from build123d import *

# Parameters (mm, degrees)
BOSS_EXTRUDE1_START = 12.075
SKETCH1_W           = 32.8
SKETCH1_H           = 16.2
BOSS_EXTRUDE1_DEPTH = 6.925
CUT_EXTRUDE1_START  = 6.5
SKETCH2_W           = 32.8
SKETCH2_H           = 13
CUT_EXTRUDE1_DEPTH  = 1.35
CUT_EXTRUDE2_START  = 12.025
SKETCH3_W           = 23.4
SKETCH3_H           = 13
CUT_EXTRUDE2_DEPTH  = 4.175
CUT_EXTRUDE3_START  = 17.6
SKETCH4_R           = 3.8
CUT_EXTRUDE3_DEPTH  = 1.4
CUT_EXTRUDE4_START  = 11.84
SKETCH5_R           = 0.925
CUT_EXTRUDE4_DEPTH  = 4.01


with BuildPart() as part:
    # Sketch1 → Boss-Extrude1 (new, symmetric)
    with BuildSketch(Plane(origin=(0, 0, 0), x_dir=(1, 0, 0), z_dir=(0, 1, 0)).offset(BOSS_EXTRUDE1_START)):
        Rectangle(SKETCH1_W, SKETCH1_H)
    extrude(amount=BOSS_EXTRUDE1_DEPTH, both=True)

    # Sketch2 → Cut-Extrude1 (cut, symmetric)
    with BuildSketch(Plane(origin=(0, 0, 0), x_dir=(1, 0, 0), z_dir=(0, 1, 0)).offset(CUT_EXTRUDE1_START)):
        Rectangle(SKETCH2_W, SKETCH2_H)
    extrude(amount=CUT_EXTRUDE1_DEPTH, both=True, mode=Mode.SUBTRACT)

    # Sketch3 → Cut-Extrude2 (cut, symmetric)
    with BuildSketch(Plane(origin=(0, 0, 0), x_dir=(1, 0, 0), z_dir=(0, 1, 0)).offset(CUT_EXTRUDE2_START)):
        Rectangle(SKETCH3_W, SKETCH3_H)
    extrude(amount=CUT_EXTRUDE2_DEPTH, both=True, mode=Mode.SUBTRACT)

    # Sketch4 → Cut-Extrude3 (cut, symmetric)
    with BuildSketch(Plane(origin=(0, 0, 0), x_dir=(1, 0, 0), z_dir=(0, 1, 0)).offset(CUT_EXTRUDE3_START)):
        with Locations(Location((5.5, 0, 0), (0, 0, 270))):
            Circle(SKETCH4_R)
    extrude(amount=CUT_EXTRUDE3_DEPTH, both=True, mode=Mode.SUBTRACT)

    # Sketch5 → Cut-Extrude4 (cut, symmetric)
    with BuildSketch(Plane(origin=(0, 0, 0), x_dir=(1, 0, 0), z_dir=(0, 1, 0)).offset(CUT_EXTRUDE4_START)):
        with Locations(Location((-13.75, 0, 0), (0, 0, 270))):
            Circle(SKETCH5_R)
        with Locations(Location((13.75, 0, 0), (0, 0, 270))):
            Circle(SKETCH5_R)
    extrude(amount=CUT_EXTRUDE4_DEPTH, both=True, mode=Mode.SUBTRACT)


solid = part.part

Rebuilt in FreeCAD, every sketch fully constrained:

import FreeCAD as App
import Part
import Sketcher
from FreeCAD import Vector
Q = App.Units.Quantity

doc = App.newDocument("Part")
body = doc.addObject("PartDesign::Body", "Body")

# Sketch on XZ plane
sketch1 = doc.addObject("Sketcher::SketchObject", "Sketch")
body.addObject(sketch1)
sketch1.AttachmentSupport = (doc.XZ_Plane, [""])
sketch1.MapMode = "FlatFace"
sketch1.AttachmentOffset = App.Placement(Vector(0, 0, -12.075), App.Rotation())
sketch1.addGeometry([
    Part.LineSegment(Vector(-16, -8, 0), Vector(-16, 8, 0)),
    Part.LineSegment(Vector(-16, 8, 0), Vector(16, 8, 0)),
    Part.LineSegment(Vector(16, 8, 0), Vector(16, -8, 0)),
    Part.LineSegment(Vector(16, -8, 0), Vector(-16, -8, 0)),
], False)
sketch1.addConstraint([
    Sketcher.Constraint("Coincident", 0, 2, 1, 1),
    Sketcher.Constraint("Coincident", 1, 2, 2, 1),
    Sketcher.Constraint("Coincident", 2, 2, 3, 1),
    Sketcher.Constraint("Coincident", 3, 2, 0, 1),
    Sketcher.Constraint("Vertical", 0),
    Sketcher.Constraint("Horizontal", 1),
    Sketcher.Constraint("Vertical", 2),
    Sketcher.Constraint("Horizontal", 3),
    Sketcher.Constraint("Symmetric", 0, 2, 2, 2, -1, 1),
    Sketcher.Constraint("DistanceX", 1, 1, 1, 2, Q("32.8 mm")),
    Sketcher.Constraint("DistanceY", 0, 1, 0, 2, Q("16.2 mm")),
])
pad1 = doc.addObject("PartDesign::Pad", "Pad")
body.addObject(pad1)
pad1.Profile = sketch1
pad1.Length = 13.85
pad1.Midplane = True

# Sketch on XZ plane
sketch2 = doc.addObject("Sketcher::SketchObject", "Sketch001")
body.addObject(sketch2)
sketch2.AttachmentSupport = (doc.XZ_Plane, [""])
sketch2.MapMode = "FlatFace"
sketch2.AttachmentOffset = App.Placement(Vector(0, 0, -6.5), App.Rotation())
sketch2.addGeometry([
    Part.LineSegment(Vector(-16, -6, 0), Vector(-16, 6, 0)),
    Part.LineSegment(Vector(-16, 6, 0), Vector(16, 6, 0)),
    Part.LineSegment(Vector(16, 6, 0), Vector(16, -6, 0)),
    Part.LineSegment(Vector(16, -6, 0), Vector(-16, -6, 0)),
], False)
sketch2.addConstraint([
    Sketcher.Constraint("Coincident", 0, 2, 1, 1),
    Sketcher.Constraint("Coincident", 1, 2, 2, 1),
    Sketcher.Constraint("Coincident", 2, 2, 3, 1),
    Sketcher.Constraint("Coincident", 3, 2, 0, 1),
    Sketcher.Constraint("Vertical", 0),
    Sketcher.Constraint("Horizontal", 1),
    Sketcher.Constraint("Vertical", 2),
    Sketcher.Constraint("Horizontal", 3),
    Sketcher.Constraint("Symmetric", 0, 2, 2, 2, -1, 1),
    Sketcher.Constraint("DistanceY", 0, 1, 0, 2, Q("13 mm")),
    Sketcher.Constraint("DistanceX", 1, 1, 1, 2, Q("32.8 mm")),
])
pocket1 = doc.addObject("PartDesign::Pocket", "Pocket")
body.addObject(pocket1)
pocket1.Profile = sketch2
pocket1.Length = 2.7
pocket1.Midplane = True

# Sketch on XZ plane
sketch3 = doc.addObject("Sketcher::SketchObject", "Sketch002")
body.addObject(sketch3)
sketch3.AttachmentSupport = (doc.XZ_Plane, [""])
sketch3.MapMode = "FlatFace"
sketch3.AttachmentOffset = App.Placement(Vector(0, 0, -12.025), App.Rotation())
sketch3.addGeometry([
    Part.LineSegment(Vector(-12, -6, 0), Vector(-12, 6, 0)),
    Part.LineSegment(Vector(-12, 6, 0), Vector(12, 6, 0)),
    Part.LineSegment(Vector(12, 6, 0), Vector(12, -6, 0)),
    Part.LineSegment(Vector(12, -6, 0), Vector(-12, -6, 0)),
], False)
sketch3.addConstraint([
    Sketcher.Constraint("Coincident", 0, 2, 1, 1),
    Sketcher.Constraint("Coincident", 1, 2, 2, 1),
    Sketcher.Constraint("Coincident", 2, 2, 3, 1),
    Sketcher.Constraint("Coincident", 3, 2, 0, 1),
    Sketcher.Constraint("Vertical", 0),
    Sketcher.Constraint("Horizontal", 1),
    Sketcher.Constraint("Vertical", 2),
    Sketcher.Constraint("Horizontal", 3),
    Sketcher.Constraint("Symmetric", 0, 2, 2, 2, -1, 1),
    Sketcher.Constraint("DistanceY", 0, 1, 0, 2, Q("13 mm")),
    Sketcher.Constraint("DistanceX", 1, 1, 1, 2, Q("23.4 mm")),
])
pocket2 = doc.addObject("PartDesign::Pocket", "Pocket001")
body.addObject(pocket2)
pocket2.Profile = sketch3
pocket2.Length = 8.35
pocket2.Midplane = True

# Sketch on XZ plane
sketch4 = doc.addObject("Sketcher::SketchObject", "Sketch003")
body.addObject(sketch4)
sketch4.AttachmentSupport = (doc.XZ_Plane, [""])
sketch4.MapMode = "FlatFace"
sketch4.AttachmentOffset = App.Placement(Vector(0, 0, -17.6), App.Rotation())
sketch4.addGeometry(Part.Circle(Vector(5.5, 0, 0), Vector(0, 0, 1), 3.8), False)
sketch4.addConstraint([
    Sketcher.Constraint("PointOnObject", 0, 3, -1),
    Sketcher.Constraint("Diameter", 0, Q("7.6 mm")),
    Sketcher.Constraint("DistanceX", -1, 1, 0, 3, Q("5.5 mm")),
])
pocket3 = doc.addObject("PartDesign::Pocket", "Pocket002")
body.addObject(pocket3)
pocket3.Profile = sketch4
pocket3.Length = 2.8
pocket3.Midplane = True

# Sketch on XZ plane
sketch5 = doc.addObject("Sketcher::SketchObject", "Sketch004")
body.addObject(sketch5)
sketch5.AttachmentSupport = (doc.XZ_Plane, [""])
sketch5.MapMode = "FlatFace"
sketch5.AttachmentOffset = App.Placement(Vector(0, 0, -11.84), App.Rotation())
sketch5.addGeometry([
    Part.Circle(Vector(-13.8, 0, 0), Vector(0, 0, 1), 0.9),
    Part.Circle(Vector(13.8, 0, 0), Vector(0, 0, 1), 0.9),
], False)
sketch5.addConstraint([
    Sketcher.Constraint("Equal", 0, 1),
    Sketcher.Constraint("Symmetric", 0, 3, 1, 3, -1, 1),
    Sketcher.Constraint("PointOnObject", 0, 3, -1),
    Sketcher.Constraint("Diameter", 0, Q("1.85 mm")),
    Sketcher.Constraint("DistanceX", 0, 3, 1, 3, Q("27.5 mm")),
])
pocket4 = doc.addObject("PartDesign::Pocket", "Pocket003")
body.addObject(pocket4)
pocket4.Profile = sketch5
pocket4.Length = 8.02
pocket4.Midplane = True

doc.recompute()
